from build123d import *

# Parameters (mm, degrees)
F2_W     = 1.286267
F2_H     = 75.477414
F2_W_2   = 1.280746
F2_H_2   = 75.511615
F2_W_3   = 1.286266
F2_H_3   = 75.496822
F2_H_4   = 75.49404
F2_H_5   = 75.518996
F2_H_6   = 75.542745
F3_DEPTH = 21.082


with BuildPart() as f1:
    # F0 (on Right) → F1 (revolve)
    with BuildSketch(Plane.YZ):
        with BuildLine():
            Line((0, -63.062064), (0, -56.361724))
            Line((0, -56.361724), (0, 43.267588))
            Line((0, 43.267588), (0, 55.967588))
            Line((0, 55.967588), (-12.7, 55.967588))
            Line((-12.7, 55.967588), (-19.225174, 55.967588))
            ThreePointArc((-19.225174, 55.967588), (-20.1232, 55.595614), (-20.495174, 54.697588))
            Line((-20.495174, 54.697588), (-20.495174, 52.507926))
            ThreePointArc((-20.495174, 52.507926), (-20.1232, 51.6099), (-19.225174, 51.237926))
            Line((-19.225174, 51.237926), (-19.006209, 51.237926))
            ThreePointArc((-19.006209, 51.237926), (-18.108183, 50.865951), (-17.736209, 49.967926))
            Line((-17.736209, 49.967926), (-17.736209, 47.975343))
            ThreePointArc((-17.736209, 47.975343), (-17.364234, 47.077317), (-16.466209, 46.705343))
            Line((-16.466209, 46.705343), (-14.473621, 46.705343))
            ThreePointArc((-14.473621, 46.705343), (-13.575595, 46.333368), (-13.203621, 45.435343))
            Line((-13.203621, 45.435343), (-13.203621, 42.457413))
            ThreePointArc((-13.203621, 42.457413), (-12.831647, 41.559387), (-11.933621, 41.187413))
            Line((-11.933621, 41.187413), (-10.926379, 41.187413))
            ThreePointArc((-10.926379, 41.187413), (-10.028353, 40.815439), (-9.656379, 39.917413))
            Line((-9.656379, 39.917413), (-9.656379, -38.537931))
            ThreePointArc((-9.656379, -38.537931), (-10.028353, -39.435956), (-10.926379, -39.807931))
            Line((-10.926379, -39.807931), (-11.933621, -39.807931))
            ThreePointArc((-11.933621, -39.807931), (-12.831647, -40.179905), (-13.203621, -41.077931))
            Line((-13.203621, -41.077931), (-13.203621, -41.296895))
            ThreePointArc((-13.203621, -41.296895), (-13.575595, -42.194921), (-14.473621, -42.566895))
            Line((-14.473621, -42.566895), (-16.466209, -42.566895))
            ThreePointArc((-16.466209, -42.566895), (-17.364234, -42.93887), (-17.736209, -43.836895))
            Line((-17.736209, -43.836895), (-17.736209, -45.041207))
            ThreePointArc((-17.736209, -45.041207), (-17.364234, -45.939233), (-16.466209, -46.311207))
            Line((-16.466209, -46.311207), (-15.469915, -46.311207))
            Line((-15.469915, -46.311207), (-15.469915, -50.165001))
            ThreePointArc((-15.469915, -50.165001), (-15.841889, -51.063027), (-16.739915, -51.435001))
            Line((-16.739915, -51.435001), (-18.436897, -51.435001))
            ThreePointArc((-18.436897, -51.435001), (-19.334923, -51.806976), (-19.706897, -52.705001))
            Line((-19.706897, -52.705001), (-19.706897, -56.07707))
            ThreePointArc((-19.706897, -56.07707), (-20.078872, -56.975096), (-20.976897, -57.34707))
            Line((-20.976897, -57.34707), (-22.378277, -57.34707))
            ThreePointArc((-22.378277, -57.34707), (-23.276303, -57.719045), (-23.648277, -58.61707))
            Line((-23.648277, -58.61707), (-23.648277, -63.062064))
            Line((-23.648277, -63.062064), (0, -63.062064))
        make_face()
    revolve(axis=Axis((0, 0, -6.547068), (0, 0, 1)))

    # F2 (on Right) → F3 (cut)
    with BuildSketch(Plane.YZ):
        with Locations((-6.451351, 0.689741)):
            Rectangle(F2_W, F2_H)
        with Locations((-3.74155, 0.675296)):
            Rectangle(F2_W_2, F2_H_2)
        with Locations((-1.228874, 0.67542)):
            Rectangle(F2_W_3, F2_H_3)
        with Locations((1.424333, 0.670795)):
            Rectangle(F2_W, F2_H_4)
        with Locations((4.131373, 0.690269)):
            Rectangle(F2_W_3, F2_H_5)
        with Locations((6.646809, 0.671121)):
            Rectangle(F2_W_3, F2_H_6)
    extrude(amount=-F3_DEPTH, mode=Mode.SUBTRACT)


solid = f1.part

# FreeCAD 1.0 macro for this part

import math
import FreeCAD as App
import Part
import Sketcher
Q = App.Units.Quantity

doc = App.newDocument("Part")
body = doc.addObject("PartDesign::Body", "Body")

sketch1 = doc.addObject("Sketcher::SketchObject", "Sketch")
body.addObject(sketch1)
sketch1.AttachmentSupport = (doc.YZ_Plane, [""])
sketch1.MapMode = "FlatFace"
sketch1.addGeometry([
    Part.LineSegment(App.Vector(0, -63.062064, 0), App.Vector(0, 55.967588, 0)),
    Part.LineSegment(App.Vector(0, 55.967588, 0), App.Vector(-19.225174, 55.967588, 0)),
    Part.ArcOfCircle(Part.Circle(App.Vector(-19.225175, 54.697589, 0), App.Vector(0, 0, 1), 1.269999), math.radians(89.99994), math.radians(180.00006)),
    Part.LineSegment(App.Vector(-20.495174, 54.697588, 0), App.Vector(-20.495174, 52.507926, 0)),
    Part.ArcOfCircle(Part.Circle(App.Vector(-19.225175, 52.507925, 0), App.Vector(0, 0, 1), 1.269999), math.radians(179.99994), math.radians(270.00006)),
    Part.LineSegment(App.Vector(-19.225174, 51.237926, 0), App.Vector(-19.006209, 51.237926, 0)),
    Part.ArcOfCircle(Part.Circle(App.Vector(-19.006209, 49.967926, 0), App.Vector(0, 0, 1), 1.27), math.radians(0.000017), math.radians(89.999983)),
    Part.LineSegment(App.Vector(-17.736209, 49.967926, 0), App.Vector(-17.736209, 47.975343, 0)),
    Part.ArcOfCircle(Part.Circle(App.Vector(-16.466209, 47.975343, 0), App.Vector(0, 0, 1), 1.27), math.radians(-179.999983), math.radians(-90.000017)),
    Part.LineSegment(App.Vector(-16.466209, 46.705343, 0), App.Vector(-14.473621, 46.705343, 0)),
    Part.ArcOfCircle(Part.Circle(App.Vector(-14.473621, 45.435343, 0), App.Vector(0, 0, 1), 1.27), math.radians(0.000017), math.radians(89.999983)),
    Part.LineSegment(App.Vector(-13.203621, 45.435343, 0), App.Vector(-13.203621, 42.457413, 0)),
    Part.ArcOfCircle(Part.Circle(App.Vector(-11.933622, 42.457412, 0), App.Vector(0, 0, 1), 1.269999), math.radians(179.99994), math.radians(270.00006)),
    Part.LineSegment(App.Vector(-11.933621, 41.187413, 0), App.Vector(-10.926379, 41.187413, 0)),
    Part.ArcOfCircle(Part.Circle(App.Vector(-10.926378, 39.917414, 0), App.Vector(0, 0, 1), 1.269999), math.radians(-0.00006), math.radians(90.00006)),
    Part.LineSegment(App.Vector(-9.656379, 39.917413, 0), App.Vector(-9.656379, -38.537931, 0)),
    Part.ArcOfCircle(Part.Circle(App.Vector(-10.926379, -38.537931, 0), App.Vector(0, 0, 1), 1.27), math.radians(-89.999983), math.radians(-0.000017)),
    Part.LineSegment(App.Vector(-10.926379, -39.807931, 0), App.Vector(-11.933621, -39.807931, 0)),
    Part.ArcOfCircle(Part.Circle(App.Vector(-11.933622, -41.07793, 0), App.Vector(0, 0, 1), 1.269999), math.radians(89.99994), math.radians(180.00006)),
    Part.LineSegment(App.Vector(-13.203621, -41.077931, 0), App.Vector(-13.203621, -41.296895, 0)),
    Part.ArcOfCircle(Part.Circle(App.Vector(-14.47362, -41.296896, 0), App.Vector(0, 0, 1), 1.269999), math.radians(-90.00006), math.radians(0.00006)),
    Part.LineSegment(App.Vector(-14.473621, -42.566895, 0), App.Vector(-16.466209, -42.566895, 0)),
    Part.ArcOfCircle(Part.Circle(App.Vector(-16.466207, -43.836897, 0), App.Vector(0, 0, 1), 1.270002), math.radians(90.000094), math.radians(179.999906)),
    Part.LineSegment(App.Vector(-17.736209, -43.836895, 0), App.Vector(-17.736209, -45.041207, 0)),
    Part.ArcOfCircle(Part.Circle(App.Vector(-16.466209, -45.041207, 0), App.Vector(0, 0, 1), 1.27), math.radians(-179.999983), math.radians(-90.000017)),
    Part.LineSegment(App.Vector(-16.466209, -46.311207, 0), App.Vector(-15.469915, -46.311207, 0)),
    Part.LineSegment(App.Vector(-15.469915, -46.311207, 0), App.Vector(-15.469915, -50.165001, 0)),
    Part.ArcOfCircle(Part.Circle(App.Vector(-16.739914, -50.165002, 0), App.Vector(0, 0, 1), 1.269999), math.radians(-90.00006), math.radians(0.00006)),
    Part.LineSegment(App.Vector(-16.739915, -51.435001, 0), App.Vector(-18.436897, -51.435001, 0)),
    Part.ArcOfCircle(Part.Circle(App.Vector(-18.436897, -52.705001, 0), App.Vector(0, 0, 1), 1.27), math.radians(90.000017), math.radians(179.999983)),
    Part.LineSegment(App.Vector(-19.706897, -52.705001, 0), App.Vector(-19.706897, -56.07707, 0)),
    Part.ArcOfCircle(Part.Circle(App.Vector(-20.976897, -56.07707, 0), App.Vector(0, 0, 1), 1.27), math.radians(-89.999983), math.radians(-0.000017)),
    Part.LineSegment(App.Vector(-20.976897, -57.34707, 0), App.Vector(-22.378277, -57.34707, 0)),
    Part.ArcOfCircle(Part.Circle(App.Vector(-22.378277, -58.61707, 0), App.Vector(0, 0, 1), 1.27), math.radians(90.000017), math.radians(179.999983)),
    Part.LineSegment(App.Vector(-23.648277, -58.61707, 0), App.Vector(-23.648277, -63.062064, 0)),
    Part.LineSegment(App.Vector(-23.648277, -63.062064, 0), App.Vector(0, -63.062064, 0)),
], False)
sketch1.addConstraint([
    Sketcher.Constraint("Coincident", 0, 2, 1, 1),
    Sketcher.Constraint("Coincident", 1, 2, 2, 1),
    Sketcher.Constraint("Coincident", 2, 2, 3, 1),
    Sketcher.Constraint("Coincident", 3, 2, 4, 1),
    Sketcher.Constraint("Coincident", 4, 2, 5, 1),
    Sketcher.Constraint("Coincident", 5, 2, 6, 2),
    Sketcher.Constraint("Coincident", 6, 1, 7, 1),
    Sketcher.Constraint("Coincident", 7, 2, 8, 1),
    Sketcher.Constraint("Coincident", 8, 2, 9, 1),
    Sketcher.Constraint("Coincident", 9, 2, 10, 2),
    Sketcher.Constraint("Coincident", 10, 1, 11, 1),
    Sketcher.Constraint("Coincident", 11, 2, 12, 1),
    Sketcher.Constraint("Coincident", 12, 2, 13, 1),
    Sketcher.Constraint("Coincident", 13, 2, 14, 2),
    Sketcher.Constraint("Coincident", 14, 1, 15, 1),
    Sketcher.Constraint("Coincident", 15, 2, 16, 2),
    Sketcher.Constraint("Coincident", 16, 1, 17, 1),
    Sketcher.Constraint("Coincident", 17, 2, 18, 1),
    Sketcher.Constraint("Coincident", 18, 2, 19, 1),
    Sketcher.Constraint("Coincident", 19, 2, 20, 2),
    Sketcher.Constraint("Coincident", 20, 1, 21, 1),
    Sketcher.Constraint("Coincident", 21, 2, 22, 1),
    Sketcher.Constraint("Coincident", 22, 2, 23, 1),
    Sketcher.Constraint("Coincident", 23, 2, 24, 1),
    Sketcher.Constraint("Coincident", 24, 2, 25, 1),
    Sketcher.Constraint("Coincident", 25, 2, 26, 1),
    Sketcher.Constraint("Coincident", 26, 2, 27, 2),
    Sketcher.Constraint("Coincident", 27, 1, 28, 1),
    Sketcher.Constraint("Coincident", 28, 2, 29, 1),
    Sketcher.Constraint("Coincident", 29, 2, 30, 1),
    Sketcher.Constraint("Coincident", 30, 2, 31, 2),
    Sketcher.Constraint("Coincident", 31, 1, 32, 1),
    Sketcher.Constraint("Coincident", 32, 2, 33, 1),
    Sketcher.Constraint("Coincident", 33, 2, 34, 1),
    Sketcher.Constraint("Coincident", 34, 2, 35, 1),
    Sketcher.Constraint("Coincident", 35, 2, 0, 1),
    Sketcher.Constraint("Vertical", 0),
    Sketcher.Constraint("Horizontal", 1),
    Sketcher.Constraint("Vertical", 3),
    Sketcher.Constraint("Horizontal", 5),
    Sketcher.Constraint("Vertical", 7),
    Sketcher.Constraint("Horizontal", 9),
    Sketcher.Constraint("Vertical", 11),
    Sketcher.Constraint("Horizontal", 13),
    Sketcher.Constraint("Vertical", 15),
    Sketcher.Constraint("Horizontal", 17),
    Sketcher.Constraint("Vertical", 19),
    Sketcher.Constraint("Horizontal", 21),
    Sketcher.Constraint("Vertical", 23),
    Sketcher.Constraint("Horizontal", 25),
    Sketcher.Constraint("Vertical", 26),
    Sketcher.Constraint("Horizontal", 28),
    Sketcher.Constraint("Vertical", 30),
    Sketcher.Constraint("Horizontal", 32),
    Sketcher.Constraint("Vertical", 34),
    Sketcher.Constraint("Horizontal", 35),
    Sketcher.Constraint("PointOnObject", 0, 2, -2),
    Sketcher.Constraint("Radius", 2, Q("0.0499999 in")),
    Sketcher.Constraint("Radius", 4, Q("0.0499999 in")),
    Sketcher.Constraint("Radius", 6, Q("0.05 in")),
    Sketcher.Constraint("Radius", 8, Q("0.05 in")),
    Sketcher.Constraint("Radius", 10, Q("0.05 in")),
    Sketcher.Constraint("Radius", 12, Q("0.0499999 in")),
    Sketcher.Constraint("Radius", 14, Q("0.0499999 in")),
    Sketcher.Constraint("Radius", 16, Q("0.05 in")),
    Sketcher.Constraint("Radius", 18, Q("0.0499999 in")),
    Sketcher.Constraint("Radius", 20, Q("0.0499999 in")),
    Sketcher.Constraint("Radius", 22, Q("0.0500001 in")),
    Sketcher.Constraint("Radius", 24, Q("0.05 in")),
    Sketcher.Constraint("Radius", 27, Q("0.0499999 in")),
    Sketcher.Constraint("Radius", 29, Q("0.05 in")),
    Sketcher.Constraint("Radius", 31, Q("0.05 in")),
    Sketcher.Constraint("Radius", 33, Q("0.05 in")),
    Sketcher.Constraint("DistanceX", 10, 3, 18, 3, Q("0.1 in")),
    Sketcher.Constraint("DistanceY", 6, 3, 3, 2, Q("0.1 in")),
    Sketcher.Constraint("DistanceY", 6, 1, 4, 3, Q("0.0999999 in")),
    Sketcher.Constraint("DistanceX", 6, 3, 8, 2, Q("0.1 in")),
    Sketcher.Constraint("DistanceY", 10, 1, 8, 3, Q("0.1 in")),
    Sketcher.Constraint("DistanceY", 14, 3, 11, 2, Q("0.0999999 in")),
    Sketcher.Constraint("DistanceX", 10, 3, 12, 2, Q("0.1 in")),
    Sketcher.Constraint("DistanceY", 14, 1, 12, 3, Q("0.0999999 in")),
    Sketcher.Constraint("DistanceY", 18, 3, 15, 2, Q("0.0999999 in")),
    Sketcher.Constraint("DistanceX", 20, 3, 17, 2, Q("0.0999999 in")),
    Sketcher.Constraint("DistanceY", 18, 2, 16, 3, Q("0.1 in")),
    Sketcher.Constraint("DistanceX", 20, 1, 18, 3, Q("0.0999999 in")),
    Sketcher.Constraint("DistanceY", 22, 2, 20, 3, Q("0.0999999 in")),
    Sketcher.Constraint("DistanceY", 29, 3, 26, 2, Q("0.1 in")),
    Sketcher.Constraint("DistanceX", 31, 3, 28, 2, Q("0.1 in")),
    Sketcher.Constraint("DistanceY", 29, 2, 27, 3, Q("0.0999999 in")),
    Sketcher.Constraint("DistanceY", 33, 3, 30, 2, Q("0.1 in")),
    Sketcher.Constraint("DistanceX", 31, 1, 29, 3, Q("0.1 in")),
    Sketcher.Constraint("DistanceY", 33, 2, 31, 3, Q("0.1 in")),
    Sketcher.Constraint("DistanceX", 2, 2, 1, 2, Q("0.05 in")),
    Sketcher.Constraint("DistanceY", 2, 2, 1, 2, Q("0.05 in")),
    Sketcher.Constraint("DistanceX", 3, 2, 4, 2, Q("0.05 in")),
    Sketcher.Constraint("DistanceX", 5, 2, 6, 1, Q("0.05 in")),
    Sketcher.Constraint("DistanceY", 8, 2, 7, 2, Q("0.05 in")),
    Sketcher.Constraint("DistanceX", 9, 2, 10, 1, Q("0.05 in")),
    Sketcher.Constraint("DistanceX", 13, 2, 14, 1, Q("0.05 in")),
    Sketcher.Constraint("DistanceX", 16, 1, 15, 2, Q("0.05 in")),
    Sketcher.Constraint("DistanceY", 20, 1, 19, 2, Q("0.05 in")),
    Sketcher.Constraint("DistanceX", 22, 2, 21, 2, Q("0.05 in")),
    Sketcher.Constraint("DistanceX", 23, 2, 24, 2, Q("0.05 in")),
    Sketcher.Constraint("DistanceY", 24, 2, 23, 2, Q("0.05 in")),
    Sketcher.Constraint("DistanceX", 27, 1, 26, 2, Q("0.05 in")),
    Sketcher.Constraint("DistanceX", 33, 2, 32, 2, Q("0.05 in")),
    Sketcher.Constraint("DistanceY", 27, 3, -1, 1, Q("1.9750001 in")),
    Sketcher.Constraint("DistanceX", 13, 1, 13, 2, 1.007242),
    Sketcher.Constraint("DistanceX", 28, 2, 28, 1, 1.696982),
    Sketcher.Constraint("DistanceX", 32, 2, 32, 1, 1.40138),
    Sketcher.Constraint("DistanceY", 0, 1, 0, 2, 119.029652),
    Sketcher.Constraint("DistanceY", 11, 2, 11, 1, 2.97793),
    Sketcher.Constraint("DistanceY", 30, 2, 30, 1, 3.372069),
    Sketcher.Constraint("DistanceX", 1, 2, 1, 1, 19.225174),
    Sketcher.Constraint("DistanceX", 5, 1, 5, 2, 0.218965),
    Sketcher.Constraint("DistanceX", 9, 1, 9, 2, 1.992588),
    Sketcher.Constraint("DistanceX", 21, 2, 21, 1, 1.992588),
    Sketcher.Constraint("DistanceX", 25, 1, 25, 2, 0.996294),
    Sketcher.Constraint("DistanceY", 3, 2, 3, 1, 2.189662),
    Sketcher.Constraint("DistanceY", 7, 2, 7, 1, 1.992583),
    Sketcher.Constraint("DistanceY", 15, 2, 15, 1, 78.455344),
    Sketcher.Constraint("DistanceY", 19, 2, 19, 1, 0.218964),
    Sketcher.Constraint("DistanceY", 23, 2, 23, 1, 1.204312),
    Sketcher.Constraint("DistanceY", 26, 2, 26, 1, 3.853794),
])
revolution = doc.addObject("PartDesign::Revolution", "Revolution")
body.addObject(revolution)
revolution.Profile = sketch1
revolution.ReferenceAxis = (sketch1, ["V_Axis"])
revolution.Angle = 360

sketch2 = doc.addObject("Sketcher::SketchObject", "Sketch001")
body.addObject(sketch2)
sketch2.AttachmentSupport = (doc.YZ_Plane, [""])
sketch2.MapMode = "FlatFace"
sketch2.addGeometry([
    Part.LineSegment(App.Vector(-7.1, 38.4, 0), App.Vector(-7.1, -37, 0)),
    Part.LineSegment(App.Vector(-7.1, -37, 0), App.Vector(-5.8, -37, 0)),
    Part.LineSegment(App.Vector(-5.8, -37, 0), App.Vector(-5.8, 38.4, 0)),
    Part.LineSegment(App.Vector(-5.8, 38.4, 0), App.Vector(-7.1, 38.4, 0)),
    Part.LineSegment(App.Vector(-4.4, 38.4, 0), App.Vector(-4.4, -37.1, 0)),
    Part.LineSegment(App.Vector(-4.4, -37.1, 0), App.Vector(-3.1, -37.1, 0)),
    Part.LineSegment(App.Vector(-3.1, -37.1, 0), App.Vector(-3.1, 38.4, 0)),
    Part.LineSegment(App.Vector(-3.1, 38.4, 0), App.Vector(-4.4, 38.4, 0)),
    Part.LineSegment(App.Vector(-1.9, 38.4, 0), App.Vector(-1.9, -37.1, 0)),
    Part.LineSegment(App.Vector(-1.9, -37.1, 0), App.Vector(-0.6, -37.1, 0)),
    Part.LineSegment(App.Vector(-0.6, -37.1, 0), App.Vector(-0.6, 38.4, 0)),
    Part.LineSegment(App.Vector(-0.6, 38.4, 0), App.Vector(-1.9, 38.4, 0)),
    Part.LineSegment(App.Vector(0.8, 38.4, 0), App.Vector(0.8, -37.1, 0)),
    Part.LineSegment(App.Vector(0.8, -37.1, 0), App.Vector(2.1, -37.1, 0)),
    Part.LineSegment(App.Vector(2.1, -37.1, 0), App.Vector(2.1, 38.4, 0)),
    Part.LineSegment(App.Vector(2.1, 38.4, 0), App.Vector(0.8, 38.4, 0)),
    Part.LineSegment(App.Vector(3.5, 38.4, 0), App.Vector(3.5, -37.1, 0)),
    Part.LineSegment(App.Vector(3.5, -37.1, 0), App.Vector(4.8, -37.1, 0)),
    Part.LineSegment(App.Vector(4.8, -37.1, 0), App.Vector(4.8, 38.4, 0)),
    Part.LineSegment(App.Vector(4.8, 38.4, 0), App.Vector(3.5, 38.4, 0)),
    Part.LineSegment(App.Vector(6, 38.4, 0), App.Vector(6, -37.1, 0)),
    Part.LineSegment(App.Vector(6, -37.1, 0), App.Vector(7.3, -37.1, 0)),
    Part.LineSegment(App.Vector(7.3, -37.1, 0), App.Vector(7.3, 38.4, 0)),
    Part.LineSegment(App.Vector(7.3, 38.4, 0), App.Vector(6, 38.4, 0)),
], False)
sketch2.addConstraint([
    Sketcher.Constraint("Coincident", 0, 2, 1, 1),
    Sketcher.Constraint("Coincident", 1, 2, 2, 1),
    Sketcher.Constraint("Coincident", 2, 2, 3, 1),
    Sketcher.Constraint("Coincident", 3, 2, 0, 1),
    Sketcher.Constraint("Coincident", 4, 2, 5, 1),
    Sketcher.Constraint("Coincident", 5, 2, 6, 1),
    Sketcher.Constraint("Coincident", 6, 2, 7, 1),
    Sketcher.Constraint("Coincident", 7, 2, 4, 1),
    Sketcher.Constraint("Coincident", 8, 2, 9, 1),
    Sketcher.Constraint("Coincident", 9, 2, 10, 1),
    Sketcher.Constraint("Coincident", 10, 2, 11, 1),
    Sketcher.Constraint("Coincident", 11, 2, 8, 1),
    Sketcher.Constraint("Coincident", 12, 2, 13, 1),
    Sketcher.Constraint("Coincident", 13, 2, 14, 1),
    Sketcher.Constraint("Coincident", 14, 2, 15, 1),
    Sketcher.Constraint("Coincident", 15, 2, 12, 1),
    Sketcher.Constraint("Coincident", 16, 2, 17, 1),
    Sketcher.Constraint("Coincident", 17, 2, 18, 1),
    Sketcher.Constraint("Coincident", 18, 2, 19, 1),
    Sketcher.Constraint("Coincident", 19, 2, 16, 1),
    Sketcher.Constraint("Coincident", 20, 2, 21, 1),
    Sketcher.Constraint("Coincident", 21, 2, 22, 1),
    Sketcher.Constraint("Coincident", 22, 2, 23, 1),
    Sketcher.Constraint("Coincident", 23, 2, 20, 1),
    Sketcher.Constraint("Vertical", 0),
    Sketcher.Constraint("Horizontal", 1),
    Sketcher.Constraint("Vertical", 2),
    Sketcher.Constraint("Horizontal", 3),
    Sketcher.Constraint("Vertical", 4),
    Sketcher.Constraint("Horizontal", 5),
    Sketcher.Constraint("Vertical", 6),
    Sketcher.Constraint("Horizontal", 7),
    Sketcher.Constraint("Vertical", 8),
    Sketcher.Constraint("Horizontal", 9),
    Sketcher.Constraint("Vertical", 10),
    Sketcher.Constraint("Horizontal", 11),
    Sketcher.Constraint("Vertical", 12),
    Sketcher.Constraint("Horizontal", 13),
    Sketcher.Constraint("Vertical", 14),
    Sketcher.Constraint("Horizontal", 15),
    Sketcher.Constraint("Vertical", 16),
    Sketcher.Constraint("Horizontal", 17),
    Sketcher.Constraint("Vertical", 18),
    Sketcher.Constraint("Horizontal", 19),
    Sketcher.Constraint("Vertical", 20),
    Sketcher.Constraint("Horizontal", 21),
    Sketcher.Constraint("Vertical", 22),
    Sketcher.Constraint("Horizontal", 23),
    Sketcher.Constraint("Equal", 3, 9),
    Sketcher.Constraint("Equal", 11, 13),
    Sketcher.Constraint("Equal", 15, 17),
    Sketcher.Constraint("Equal", 19, 21),
    Sketcher.Constraint("DistanceY", 12, 2, 12, 1, 75.49404),
    Sketcher.Constraint("DistanceX", -1, 1, 12, 2, 0.7812),
    Sketcher.Constraint("DistanceX", 1, 1, 1, 2, 1.286267),
    Sketcher.Constraint("DistanceX", 5, 1, 5, 2, 1.280746),
    Sketcher.Constraint("DistanceY", 0, 2, 0, 1, 75.477414),
    Sketcher.Constraint("DistanceY", 4, 2, 4, 1, 75.511615),
    Sketcher.Constraint("DistanceY", 8, 2, 8, 1, 75.496822),
    Sketcher.Constraint("DistanceY", 16, 2, 16, 1, 75.518996),
    Sketcher.Constraint("DistanceY", 20, 2, 20, 1, 75.542745),
    Sketcher.Constraint("DistanceY", -1, 1, 2, 2, 38.428448),
    Sketcher.Constraint("DistanceY", 4, 2, -1, 1, 37.080512),
    Sketcher.Constraint("DistanceY", 8, 2, -1, 1, 37.072991),
    Sketcher.Constraint("DistanceX", 9, 2, -1, 1, 0.585741),
    Sketcher.Constraint("DistanceX", -1, 1, 16, 2, 3.48824),
    Sketcher.Constraint("DistanceY", 16, 2, -1, 1, 37.069229),
    Sketcher.Constraint("DistanceY", 20, 2, -1, 1, 37.100251),
    Sketcher.Constraint("DistanceX", 0, 2, 4, 2, 2.712562),
    Sketcher.Constraint("DistanceX", 5, 2, 8, 2, 1.22917),
    Sketcher.Constraint("DistanceY", 12, 2, 1, 2, 0.027259),
    Sketcher.Constraint("DistanceX", 17, 2, 20, 2, 1.22917),
])
pocket1 = doc.addObject("PartDesign::Pocket", "Pocket")
body.addObject(pocket1)
pocket1.Profile = sketch2
pocket1.Length = Q("0.83 in")

doc.recompute()
